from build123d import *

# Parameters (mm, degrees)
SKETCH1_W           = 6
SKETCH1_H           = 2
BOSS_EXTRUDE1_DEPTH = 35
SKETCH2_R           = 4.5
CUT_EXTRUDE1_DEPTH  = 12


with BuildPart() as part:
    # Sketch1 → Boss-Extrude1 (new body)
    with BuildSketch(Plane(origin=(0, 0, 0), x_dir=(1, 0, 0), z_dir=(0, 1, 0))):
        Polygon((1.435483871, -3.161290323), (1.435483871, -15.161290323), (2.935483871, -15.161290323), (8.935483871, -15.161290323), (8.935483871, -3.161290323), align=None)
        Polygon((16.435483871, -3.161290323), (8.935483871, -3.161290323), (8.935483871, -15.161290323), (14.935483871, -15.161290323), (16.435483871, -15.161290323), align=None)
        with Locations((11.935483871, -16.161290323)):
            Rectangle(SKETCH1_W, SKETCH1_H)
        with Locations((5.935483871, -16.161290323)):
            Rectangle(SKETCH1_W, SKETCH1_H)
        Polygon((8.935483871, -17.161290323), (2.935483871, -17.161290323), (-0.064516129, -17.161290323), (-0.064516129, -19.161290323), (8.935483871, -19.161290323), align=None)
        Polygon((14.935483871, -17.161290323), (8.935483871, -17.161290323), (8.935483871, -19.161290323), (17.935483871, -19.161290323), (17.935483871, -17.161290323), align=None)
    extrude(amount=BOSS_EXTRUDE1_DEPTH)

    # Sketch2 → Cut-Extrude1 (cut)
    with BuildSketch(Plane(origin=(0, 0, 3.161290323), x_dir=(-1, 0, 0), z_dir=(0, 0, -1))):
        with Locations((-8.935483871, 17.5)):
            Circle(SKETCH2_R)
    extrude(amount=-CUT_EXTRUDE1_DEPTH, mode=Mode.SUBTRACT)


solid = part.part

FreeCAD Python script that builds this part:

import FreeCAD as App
import Part
import Sketcher
Q = App.Units.Quantity

doc = App.newDocument("Part")
body = doc.addObject("PartDesign::Body", "Body")

# Sketch on XZ plane
sketch1 = doc.addObject("Sketcher::SketchObject", "Sketch")
body.addObject(sketch1)
sketch1.AttachmentSupport = (doc.XZ_Plane, [""])
sketch1.MapMode = "FlatFace"
sketch1.addGeometry(Part.LineSegment(App.Vector(1.4, 3.2, 0), App.Vector(1.4, 15.2, 0)), False)
sketch1.addGeometry(Part.LineSegment(App.Vector(1.4, 15.2, 0), App.Vector(2.9, 15.2, 0)), False)
sketch1.addGeometry(Part.LineSegment(App.Vector(2.9, 15.2, 0), App.Vector(2.9, 17.2, 0)), False)
sketch1.addGeometry(Part.LineSegment(App.Vector(2.9, 17.2, 0), App.Vector(-0.1, 17.2, 0)), False)
sketch1.addGeometry(Part.LineSegment(App.Vector(-0.1, 17.2, 0), App.Vector(-0.1, 19.2, 0)), False)
sketch1.addGeometry(Part.LineSegment(App.Vector(-0.1, 19.2, 0), App.Vector(17.9, 19.2, 0)), False)
sketch1.addGeometry(Part.LineSegment(App.Vector(17.9, 19.2, 0), App.Vector(17.9, 17.2, 0)), False)
sketch1.addGeometry(Part.LineSegment(App.Vector(17.9, 17.2, 0), App.Vector(14.9, 17.2, 0)), False)
sketch1.addGeometry(Part.LineSegment(App.Vector(14.9, 17.2, 0), App.Vector(14.9, 15.2, 0)), False)
sketch1.addGeometry(Part.LineSegment(App.Vector(14.9, 15.2, 0), App.Vector(16.4, 15.2, 0)), False)
sketch1.addGeometry(Part.LineSegment(App.Vector(16.4, 15.2, 0), App.Vector(16.4, 3.2, 0)), False)
sketch1.addGeometry(Part.LineSegment(App.Vector(16.4, 3.2, 0), App.Vector(1.4, 3.2, 0)), False)
sketch1.addConstraint(Sketcher.Constraint("Coincident", 0, 2, 1, 1))
sketch1.addConstraint(Sketcher.Constraint("Coincident", 1, 2, 2, 1))
sketch1.addConstraint(Sketcher.Constraint("Coincident", 2, 2, 3, 1))
sketch1.addConstraint(Sketcher.Constraint("Coincident", 3, 2, 4, 1))
sketch1.addConstraint(Sketcher.Constraint("Coincident", 4, 2, 5, 1))
sketch1.addConstraint(Sketcher.Constraint("Coincident", 5, 2, 6, 1))
sketch1.addConstraint(Sketcher.Constraint("Coincident", 6, 2, 7, 1))
sketch1.addConstraint(Sketcher.Constraint("Coincident", 7, 2, 8, 1))
sketch1.addConstraint(Sketcher.Constraint("Coincident", 8, 2, 9, 1))
sketch1.addConstraint(Sketcher.Constraint("Coincident", 9, 2, 10, 1))
sketch1.addConstraint(Sketcher.Constraint("Coincident", 10, 2, 11, 1))
sketch1.addConstraint(Sketcher.Constraint("Coincident", 11, 2, 0, 1))
sketch1.addConstraint(Sketcher.Constraint("Vertical", 0))
sketch1.addConstraint(Sketcher.Constraint("Horizontal", 1))
sketch1.addConstraint(Sketcher.Constraint("Vertical", 2))
sketch1.addConstraint(Sketcher.Constraint("Horizontal", 3))
sketch1.addConstraint(Sketcher.Constraint("Vertical", 4))
sketch1.addConstraint(Sketcher.Constraint("Horizontal", 5))
sketch1.addConstraint(Sketcher.Constraint("Vertical", 6))
sketch1.addConstraint(Sketcher.Constraint("Horizontal", 7))
sketch1.addConstraint(Sketcher.Constraint("Vertical", 8))
sketch1.addConstraint(Sketcher.Constraint("Horizontal", 9))
sketch1.addConstraint(Sketcher.Constraint("Vertical", 10))
sketch1.addConstraint(Sketcher.Constraint("Horizontal", 11))
sketch1.addConstraint(Sketcher.Constraint("Horizontal", 3, 2, 6, 2))
sketch1.addConstraint(Sketcher.Constraint("Horizontal", 1, 2, 8, 2))
sketch1.addConstraint(Sketcher.Constraint("Equal", 3, 7))
sketch1.addConstraint(Sketcher.Constraint("Equal", 1, 9))
sketch1.addConstraint(Sketcher.Constraint("Equal", 2, 4))
sketch1.addConstraint(Sketcher.Constraint("DistanceX", 3, 2, 3, 1, Q("3 mm")))
sketch1.addConstraint(Sketcher.Constraint("DistanceX", 5, 1, 5, 2, Q("18 mm")))
sketch1.addConstraint(Sketcher.Constraint("DistanceX", 11, 2, 11, 1, Q("15 mm")))
sketch1.addConstraint(Sketcher.Constraint("DistanceY", 0, 1, 0, 2, Q("12 mm")))
sketch1.addConstraint(Sketcher.Constraint("DistanceY", 2, 1, 2, 2, Q("2 mm")))
sketch1.addConstraint(Sketcher.Constraint("DistanceY", -1, 1, 0, 2, Q("15.16129 mm")))
sketch1.addConstraint(Sketcher.Constraint("DistanceX", -1, 1, 0, 2, Q("1.435484 mm")))
pad1 = doc.addObject("PartDesign::Pad", "Pad")
body.addObject(pad1)
pad1.Profile = sketch1
pad1.Length = 35
pad1.Reversed = True

# Sketch on XY plane
sketch2 = doc.addObject("Sketcher::SketchObject", "Sketch001")
body.addObject(sketch2)
sketch2.AttachmentSupport = (doc.XY_Plane, [""])
sketch2.MapMode = "FlatFace"
sketch2.AttachmentOffset = App.Placement(App.Vector(0, 0, 3.16129), App.Rotation())
sketch2.addGeometry(Part.Circle(App.Vector(8.9, 17.5, 0), App.Vector(0, 0, 1), 4.5), False)
sketch2.addConstraint(Sketcher.Constraint("Diameter", 0, Q("9 mm")))
sketch2.addConstraint(Sketcher.Constraint("DistanceY", -1, 1, 0, 3, Q("17.5 mm")))
sketch2.addConstraint(Sketcher.Constraint("DistanceX", -1, 1, 0, 3, Q("8.935484 mm")))
pocket1 = doc.addObject("PartDesign::Pocket", "Pocket")
body.addObject(pocket1)
pocket1.Profile = sketch2
pocket1.Length = 12
pocket1.Reversed = True

doc.recompute()
